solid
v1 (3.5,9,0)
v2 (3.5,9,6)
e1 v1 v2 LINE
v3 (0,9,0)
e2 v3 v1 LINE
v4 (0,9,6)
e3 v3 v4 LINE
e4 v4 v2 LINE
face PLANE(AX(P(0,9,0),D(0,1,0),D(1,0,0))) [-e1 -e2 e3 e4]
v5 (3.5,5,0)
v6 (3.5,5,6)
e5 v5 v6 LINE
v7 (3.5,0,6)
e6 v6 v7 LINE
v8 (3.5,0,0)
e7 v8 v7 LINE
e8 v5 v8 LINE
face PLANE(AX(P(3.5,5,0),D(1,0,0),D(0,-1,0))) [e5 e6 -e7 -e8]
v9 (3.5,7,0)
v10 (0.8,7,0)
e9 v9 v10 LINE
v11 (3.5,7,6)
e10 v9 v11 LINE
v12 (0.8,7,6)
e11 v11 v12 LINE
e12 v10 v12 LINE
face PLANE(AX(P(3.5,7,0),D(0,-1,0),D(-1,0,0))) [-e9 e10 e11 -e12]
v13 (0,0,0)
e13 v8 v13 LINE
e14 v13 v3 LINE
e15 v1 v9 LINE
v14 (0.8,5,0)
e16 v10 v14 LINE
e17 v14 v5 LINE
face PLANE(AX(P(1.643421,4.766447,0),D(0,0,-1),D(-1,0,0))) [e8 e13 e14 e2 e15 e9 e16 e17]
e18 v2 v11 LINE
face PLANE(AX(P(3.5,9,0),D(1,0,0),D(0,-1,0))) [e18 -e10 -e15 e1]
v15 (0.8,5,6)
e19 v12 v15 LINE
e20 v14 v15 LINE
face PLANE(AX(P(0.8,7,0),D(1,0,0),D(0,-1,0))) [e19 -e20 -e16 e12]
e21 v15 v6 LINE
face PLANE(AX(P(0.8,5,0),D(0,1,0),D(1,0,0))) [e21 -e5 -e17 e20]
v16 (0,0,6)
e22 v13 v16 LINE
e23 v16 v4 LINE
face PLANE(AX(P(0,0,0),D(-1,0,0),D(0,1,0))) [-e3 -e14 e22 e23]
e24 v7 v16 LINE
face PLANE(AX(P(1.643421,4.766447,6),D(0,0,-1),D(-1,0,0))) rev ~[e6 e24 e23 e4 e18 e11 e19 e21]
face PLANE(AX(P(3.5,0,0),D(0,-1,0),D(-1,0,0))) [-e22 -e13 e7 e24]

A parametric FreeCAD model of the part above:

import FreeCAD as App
import Part
import Sketcher
from FreeCAD import Vector

doc = App.newDocument("Part")
body = doc.addObject("PartDesign::Body", "Body")

sketch1 = body.newObject("Sketcher::SketchObject", "Sketch")
sketch1.AttachmentSupport = (doc.getObject("XY_Plane"), [""])
sketch1.MapMode = "FlatFace"
sketch1.addGeometry([
    Part.LineSegment(Vector(0, 9, 0), Vector(0, 0, 0)),
    Part.LineSegment(Vector(0, 0, 0), Vector(3.5, 0, 0)),
    Part.LineSegment(Vector(3.5, 0, 0), Vector(3.5, 5, 0)),
    Part.LineSegment(Vector(3.5, 5, 0), Vector(0.8, 5, 0)),
    Part.LineSegment(Vector(0.8, 5, 0), Vector(0.8, 7, 0)),
    Part.LineSegment(Vector(0.8, 7, 0), Vector(3.5, 7, 0)),
    Part.LineSegment(Vector(3.5, 7, 0), Vector(3.5, 9, 0)),
    Part.LineSegment(Vector(3.5, 9, 0), Vector(0, 9, 0)),
], False)
sketch1.addConstraint([
    Sketcher.Constraint("Coincident", 0, 2, 1, 1),
    Sketcher.Constraint("Coincident", 1, 2, 2, 1),
    Sketcher.Constraint("Coincident", 2, 2, 3, 1),
    Sketcher.Constraint("Coincident", 3, 2, 4, 1),
    Sketcher.Constraint("Coincident", 4, 2, 5, 1),
    Sketcher.Constraint("Coincident", 5, 2, 6, 1),
    Sketcher.Constraint("Coincident", 6, 2, 7, 1),
    Sketcher.Constraint("Coincident", 7, 2, 0, 1),
    Sketcher.Constraint("Vertical", 0),
    Sketcher.Constraint("Horizontal", 1),
    Sketcher.Constraint("Vertical", 2),
    Sketcher.Constraint("Horizontal", 3),
    Sketcher.Constraint("Vertical", 4),
    Sketcher.Constraint("Horizontal", 5),
    Sketcher.Constraint("Vertical", 6),
    Sketcher.Constraint("Horizontal", 7),
    Sketcher.Constraint("Coincident", 0, 2, -1, 1),
    Sketcher.Constraint("Vertical", 2, 2, 5, 2),
    Sketcher.Constraint("Equal", 4, 6),
    Sketcher.Constraint("DistanceY", 0, 2, 0, 1, 9.0),
    Sketcher.Constraint("DistanceY", 2, 1, 2, 2, 5.0),
    Sketcher.Constraint("DistanceX", 1, 1, 1, 2, 3.5),
    Sketcher.Constraint("DistanceX", 3, 2, 3, 1, 2.7),
])
pad1 = body.newObject("PartDesign::Pad", "Pad")
pad1.Profile = sketch1
pad1.Length = 6

doc.recompute()
